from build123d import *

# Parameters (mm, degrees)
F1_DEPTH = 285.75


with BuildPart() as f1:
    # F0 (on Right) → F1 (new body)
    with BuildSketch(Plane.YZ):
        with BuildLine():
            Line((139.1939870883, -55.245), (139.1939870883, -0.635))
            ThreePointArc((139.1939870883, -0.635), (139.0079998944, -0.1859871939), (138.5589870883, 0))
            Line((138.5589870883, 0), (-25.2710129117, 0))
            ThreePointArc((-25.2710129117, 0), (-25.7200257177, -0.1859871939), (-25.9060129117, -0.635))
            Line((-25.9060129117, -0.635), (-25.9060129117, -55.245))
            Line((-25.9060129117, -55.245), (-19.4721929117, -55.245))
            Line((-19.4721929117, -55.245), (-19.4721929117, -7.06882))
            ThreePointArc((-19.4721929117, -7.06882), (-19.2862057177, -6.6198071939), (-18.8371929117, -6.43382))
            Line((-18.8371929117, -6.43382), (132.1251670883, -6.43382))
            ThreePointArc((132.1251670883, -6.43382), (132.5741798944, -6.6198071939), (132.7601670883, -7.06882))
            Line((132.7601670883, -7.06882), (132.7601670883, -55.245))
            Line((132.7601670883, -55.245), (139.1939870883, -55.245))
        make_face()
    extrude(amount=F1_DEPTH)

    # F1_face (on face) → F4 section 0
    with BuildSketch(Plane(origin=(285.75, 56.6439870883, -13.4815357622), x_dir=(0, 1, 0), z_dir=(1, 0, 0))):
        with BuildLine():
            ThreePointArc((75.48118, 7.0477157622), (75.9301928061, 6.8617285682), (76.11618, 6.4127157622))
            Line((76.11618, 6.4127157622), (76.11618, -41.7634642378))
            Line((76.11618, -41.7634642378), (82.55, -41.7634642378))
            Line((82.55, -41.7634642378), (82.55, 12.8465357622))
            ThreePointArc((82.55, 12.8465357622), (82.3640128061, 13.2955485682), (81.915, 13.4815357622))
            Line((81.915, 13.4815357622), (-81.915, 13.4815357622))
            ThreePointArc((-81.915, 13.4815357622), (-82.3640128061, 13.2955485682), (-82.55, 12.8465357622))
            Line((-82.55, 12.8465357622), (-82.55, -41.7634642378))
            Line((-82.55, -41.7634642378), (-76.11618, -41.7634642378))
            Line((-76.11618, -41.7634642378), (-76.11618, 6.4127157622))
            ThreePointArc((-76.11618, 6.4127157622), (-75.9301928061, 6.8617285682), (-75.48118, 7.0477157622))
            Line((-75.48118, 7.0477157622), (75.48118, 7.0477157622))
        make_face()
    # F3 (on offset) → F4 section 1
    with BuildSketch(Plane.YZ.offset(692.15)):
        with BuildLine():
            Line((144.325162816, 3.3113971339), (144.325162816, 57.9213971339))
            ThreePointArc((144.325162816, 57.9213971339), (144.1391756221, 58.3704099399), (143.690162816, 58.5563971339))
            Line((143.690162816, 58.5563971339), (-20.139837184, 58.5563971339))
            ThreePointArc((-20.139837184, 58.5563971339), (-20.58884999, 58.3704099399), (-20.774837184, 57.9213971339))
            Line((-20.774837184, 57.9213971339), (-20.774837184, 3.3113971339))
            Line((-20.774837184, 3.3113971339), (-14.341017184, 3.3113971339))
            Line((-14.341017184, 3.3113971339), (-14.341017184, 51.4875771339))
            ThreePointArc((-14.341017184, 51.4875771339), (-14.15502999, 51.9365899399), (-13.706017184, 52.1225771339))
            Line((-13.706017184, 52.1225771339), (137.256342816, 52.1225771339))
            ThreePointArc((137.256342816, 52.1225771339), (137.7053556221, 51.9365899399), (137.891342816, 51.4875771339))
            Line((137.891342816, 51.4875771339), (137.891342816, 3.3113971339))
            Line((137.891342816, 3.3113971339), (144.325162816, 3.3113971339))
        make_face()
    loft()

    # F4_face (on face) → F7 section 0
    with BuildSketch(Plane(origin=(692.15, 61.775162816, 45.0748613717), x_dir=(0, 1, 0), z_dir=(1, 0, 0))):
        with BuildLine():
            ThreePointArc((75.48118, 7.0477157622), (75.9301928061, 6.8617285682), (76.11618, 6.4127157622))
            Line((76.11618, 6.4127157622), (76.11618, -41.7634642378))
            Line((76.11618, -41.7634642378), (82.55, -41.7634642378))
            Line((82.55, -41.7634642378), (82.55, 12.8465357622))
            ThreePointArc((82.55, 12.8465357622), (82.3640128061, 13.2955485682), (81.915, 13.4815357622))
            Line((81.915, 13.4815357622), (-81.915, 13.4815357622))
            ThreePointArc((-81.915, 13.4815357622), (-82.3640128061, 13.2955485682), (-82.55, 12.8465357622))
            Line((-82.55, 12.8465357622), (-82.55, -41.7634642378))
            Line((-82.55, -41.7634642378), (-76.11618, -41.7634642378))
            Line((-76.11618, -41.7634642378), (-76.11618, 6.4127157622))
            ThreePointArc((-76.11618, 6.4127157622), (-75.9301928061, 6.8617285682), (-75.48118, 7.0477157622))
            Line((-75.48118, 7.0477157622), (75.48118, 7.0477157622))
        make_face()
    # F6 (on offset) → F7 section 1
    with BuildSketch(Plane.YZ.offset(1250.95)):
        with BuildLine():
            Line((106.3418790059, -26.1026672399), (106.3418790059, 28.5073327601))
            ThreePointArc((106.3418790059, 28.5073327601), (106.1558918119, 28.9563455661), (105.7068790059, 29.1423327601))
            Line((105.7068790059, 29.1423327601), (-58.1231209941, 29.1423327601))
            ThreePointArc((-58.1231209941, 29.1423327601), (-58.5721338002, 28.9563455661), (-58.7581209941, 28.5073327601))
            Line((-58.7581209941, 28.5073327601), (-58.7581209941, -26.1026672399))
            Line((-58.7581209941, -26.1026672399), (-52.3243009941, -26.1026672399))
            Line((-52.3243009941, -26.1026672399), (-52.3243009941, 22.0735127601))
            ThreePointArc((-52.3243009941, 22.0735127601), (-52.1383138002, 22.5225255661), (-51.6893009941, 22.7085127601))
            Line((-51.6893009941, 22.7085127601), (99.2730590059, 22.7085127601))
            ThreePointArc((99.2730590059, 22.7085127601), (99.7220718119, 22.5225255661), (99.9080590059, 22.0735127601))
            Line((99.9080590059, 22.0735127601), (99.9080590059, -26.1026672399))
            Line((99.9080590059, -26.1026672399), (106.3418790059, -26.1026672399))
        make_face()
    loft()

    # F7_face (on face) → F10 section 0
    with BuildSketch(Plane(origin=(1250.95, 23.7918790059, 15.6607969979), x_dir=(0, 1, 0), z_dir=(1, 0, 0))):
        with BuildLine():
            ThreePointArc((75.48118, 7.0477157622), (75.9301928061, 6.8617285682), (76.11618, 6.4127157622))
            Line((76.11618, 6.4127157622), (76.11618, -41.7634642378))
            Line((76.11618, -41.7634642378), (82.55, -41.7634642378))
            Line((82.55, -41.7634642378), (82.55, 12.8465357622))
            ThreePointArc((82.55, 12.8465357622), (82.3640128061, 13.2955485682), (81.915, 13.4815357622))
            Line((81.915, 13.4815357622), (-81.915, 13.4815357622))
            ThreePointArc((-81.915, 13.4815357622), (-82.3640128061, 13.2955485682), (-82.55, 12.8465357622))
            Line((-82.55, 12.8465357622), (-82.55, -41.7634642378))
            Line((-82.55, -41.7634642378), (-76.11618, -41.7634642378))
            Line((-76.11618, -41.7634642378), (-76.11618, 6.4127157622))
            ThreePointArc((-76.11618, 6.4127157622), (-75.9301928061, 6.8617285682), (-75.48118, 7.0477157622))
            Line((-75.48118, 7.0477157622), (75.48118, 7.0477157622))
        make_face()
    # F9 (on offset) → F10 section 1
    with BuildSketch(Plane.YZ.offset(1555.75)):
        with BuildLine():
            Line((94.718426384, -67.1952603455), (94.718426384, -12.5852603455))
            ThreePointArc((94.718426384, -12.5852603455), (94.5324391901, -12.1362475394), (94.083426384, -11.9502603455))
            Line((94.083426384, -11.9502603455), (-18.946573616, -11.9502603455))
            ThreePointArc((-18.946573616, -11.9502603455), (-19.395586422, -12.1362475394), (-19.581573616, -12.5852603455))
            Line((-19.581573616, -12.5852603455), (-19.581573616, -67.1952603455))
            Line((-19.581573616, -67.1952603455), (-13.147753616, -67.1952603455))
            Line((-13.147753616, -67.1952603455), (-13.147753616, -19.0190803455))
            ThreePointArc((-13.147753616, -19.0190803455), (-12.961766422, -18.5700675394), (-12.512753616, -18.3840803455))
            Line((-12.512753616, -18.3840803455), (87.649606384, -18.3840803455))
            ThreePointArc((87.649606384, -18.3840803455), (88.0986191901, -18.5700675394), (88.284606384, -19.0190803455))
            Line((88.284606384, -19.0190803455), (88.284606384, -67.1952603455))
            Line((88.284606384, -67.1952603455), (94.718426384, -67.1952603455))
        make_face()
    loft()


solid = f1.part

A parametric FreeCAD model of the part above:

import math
import FreeCAD as App
import Part
import Sketcher
from FreeCAD import Vector
Q = App.Units.Quantity

doc = App.newDocument("Part")
params = doc.addObject("Spreadsheet::Sheet", "Params")
for row, (alias, value) in enumerate([
    ("sketch1_radius", "0.025 in"),
    ("sketch1_width", "6.45 in"),
    ("sketch1_height", "2.15 in"),
    ("pad1_length", "11.25 in"),
    ("sketch2_radius", "0.025 in"),
    ("sketch2_width", "6.45 in"),
    ("sketch2_height", "2.15 in"),
    ("sketch3_radius", "0.025 in"),
    ("sketch3_width", "6.45 in"),
    ("sketch3_height", "2.15 in"),
    ("sketch4_radius", "0.025 in"),
    ("sketch4_width", "6.45 in"),
    ("sketch4_height", "2.15 in"),
    ("sketch5_radius", "0.025 in"),
    ("sketch5_width", "6.45 in"),
    ("sketch5_height", "2.15 in"),
    ("sketch6_radius", "0.025 in"),
    ("sketch6_width", "6.45 in"),
    ("sketch6_height", "2.15 in"),
    ("sketch7_radius", "0.025 in"),
    ("sketch7_width", "4.45 in"),
    ("sketch7_height", "2.15 in"),
], start=1):
    params.set(f"A{row}", alias)
    params.set(f"B{row}", "=" + value)
    params.setAlias(f"B{row}", alias)

body = doc.addObject("PartDesign::Body", "Body")

# Sketch on YZ plane
sketch1 = body.newObject("Sketcher::SketchObject", "Sketch")
sketch1.AttachmentSupport = (doc.getObject("YZ_Plane"), [""])
sketch1.MapMode = "FlatFace"
sketch1.addGeometry(Part.LineSegment(Vector(139.2, -55.2, 0), Vector(139.2, -0.6, 0)), False)
sketch1.addGeometry(Part.ArcOfCircle(Part.Circle(Vector(138.6, -0.6, 0), Vector(0, 0, 1), 0.6), math.radians(0), math.radians(90)), False)
sketch1.addGeometry(Part.LineSegment(Vector(138.6, 0, 0), Vector(-25.3, 0, 0)), False)
sketch1.addGeometry(Part.ArcOfCircle(Part.Circle(Vector(-25.3, -0.6, 0), Vector(0, 0, 1), 0.6), math.radians(90), math.radians(180)), False)
sketch1.addGeometry(Part.LineSegment(Vector(-25.9, -0.6, 0), Vector(-25.9, -55.2, 0)), False)
sketch1.addGeometry(Part.LineSegment(Vector(-25.9, -55.2, 0), Vector(-19.5, -55.2, 0)), False)
sketch1.addGeometry(Part.LineSegment(Vector(-19.5, -55.2, 0), Vector(-19.5, -7.1, 0)), False)
sketch1.addGeometry(Part.ArcOfCircle(Part.Circle(Vector(-18.8, -7.1, 0), Vector(0, 0, 1), 0.6), math.radians(90), math.radians(180)), False)
sketch1.addGeometry(Part.LineSegment(Vector(-18.8, -6.4, 0), Vector(132.1, -6.4, 0)), False)
sketch1.addGeometry(Part.ArcOfCircle(Part.Circle(Vector(132.1, -7.1, 0), Vector(0, 0, 1), 0.6), math.radians(0), math.radians(90)), False)
sketch1.addGeometry(Part.LineSegment(Vector(132.8, -7.1, 0), Vector(132.8, -55.2, 0)), False)
sketch1.addGeometry(Part.LineSegment(Vector(132.8, -55.2, 0), Vector(139.2, -55.2, 0)), False)
sketch1.addConstraint(Sketcher.Constraint("Tangent", 0, 2, 1, 1))
sketch1.addConstraint(Sketcher.Constraint("Tangent", 1, 2, 2, 1))
sketch1.addConstraint(Sketcher.Constraint("Tangent", 2, 2, 3, 1))
sketch1.addConstraint(Sketcher.Constraint("Tangent", 3, 2, 4, 1))
sketch1.addConstraint(Sketcher.Constraint("Coincident", 4, 2, 5, 1))
sketch1.addConstraint(Sketcher.Constraint("Coincident", 5, 2, 6, 1))
sketch1.addConstraint(Sketcher.Constraint("Tangent", 6, 2, 7, 2))
sketch1.addConstraint(Sketcher.Constraint("Tangent", 7, 1, 8, 1))
sketch1.addConstraint(Sketcher.Constraint("Tangent", 8, 2, 9, 2))
sketch1.addConstraint(Sketcher.Constraint("Tangent", 9, 1, 10, 1))
sketch1.addConstraint(Sketcher.Constraint("Coincident", 10, 2, 11, 1))
sketch1.addConstraint(Sketcher.Constraint("Coincident", 11, 2, 0, 1))
sketch1.addConstraint(Sketcher.Constraint("Vertical", 0))
sketch1.addConstraint(Sketcher.Constraint("Horizontal", 2))
sketch1.addConstraint(Sketcher.Constraint("Vertical", 4))
sketch1.addConstraint(Sketcher.Constraint("Horizontal", 5))
sketch1.addConstraint(Sketcher.Constraint("Vertical", 6))
sketch1.addConstraint(Sketcher.Constraint("Horizontal", 8))
sketch1.addConstraint(Sketcher.Constraint("Vertical", 10))
sketch1.addConstraint(Sketcher.Constraint("Horizontal", 11))
sketch1.addConstraint(Sketcher.Constraint("Equal", 1, 3))
sketch1.addConstraint(Sketcher.Constraint("Equal", 3, 7))
sketch1.addConstraint(Sketcher.Constraint("Equal", 7, 9))
sketch1.addConstraint(Sketcher.Constraint("PointOnObject", 1, 2, -1))
sketch1.addConstraint(Sketcher.Constraint("Horizontal", 5, 2, 10, 2))
sketch1.addConstraint(Sketcher.Constraint("Equal", 5, 11))
sketch1.addConstraint(Sketcher.Constraint("Radius", 1, Q("0.025 in")))
sketch1.addConstraint(Sketcher.Constraint("DistanceX", 2, 2, 2, 1, Q("6.45 in")))
sketch1.addConstraint(Sketcher.Constraint("DistanceY", 0, 1, 0, 2, Q("2.15 in")))
sketch1.addConstraint(Sketcher.Constraint("DistanceX", 5, 1, 5, 2, Q("0.2533 in")))
sketch1.addConstraint(Sketcher.Constraint("DistanceY", 6, 1, 6, 2, Q("1.8967 in")))
sketch1.addConstraint(Sketcher.Constraint("DistanceX", -1, 1, 1, 3, 138.558987))
sketch1.setExpression("Constraints[26]", "Params.sketch1_radius")
sketch1.setExpression("Constraints[27]", "Params.sketch1_width")
sketch1.setExpression("Constraints[28]", "Params.sketch1_height")
pad1 = body.newObject("PartDesign::Pad", "Pad")
pad1.Profile = sketch1
pad1.setExpression("Length", "Params.pad1_length")

# Sketch on YZ plane
sketch2 = body.newObject("Sketcher::SketchObject", "Sketch001")
sketch2.AttachmentSupport = (doc.getObject("YZ_Plane"), [""])
sketch2.MapMode = "FlatFace"
sketch2.AttachmentOffset = App.Placement(Vector(0, 0, 11.25 * 25.4), App.Rotation())
sketch2.addGeometry(Part.ArcOfCircle(Part.Circle(Vector(132.1, -7.1, 0), Vector(0, 0, 1), 0.6), math.radians(0), math.radians(90)), False)
sketch2.addGeometry(Part.LineSegment(Vector(132.8, -7.1, 0), Vector(132.8, -55.2, 0)), False)
sketch2.addGeometry(Part.LineSegment(Vector(132.8, -55.2, 0), Vector(139.2, -55.2, 0)), False)
sketch2.addGeometry(Part.LineSegment(Vector(139.2, -55.2, 0), Vector(139.2, -0.6, 0)), False)
sketch2.addGeometry(Part.ArcOfCircle(Part.Circle(Vector(138.6, -0.6, 0), Vector(0, 0, 1), 0.6), math.radians(0), math.radians(90)), False)
sketch2.addGeometry(Part.LineSegment(Vector(138.6, 0, 0), Vector(-25.3, 0, 0)), False)
sketch2.addGeometry(Part.ArcOfCircle(Part.Circle(Vector(-25.3, -0.6, 0), Vector(0, 0, 1), 0.6), math.radians(90), math.radians(180)), False)
sketch2.addGeometry(Part.LineSegment(Vector(-25.9, -0.6, 0), Vector(-25.9, -55.2, 0)), False)
sketch2.addGeometry(Part.LineSegment(Vector(-25.9, -55.2, 0), Vector(-19.5, -55.2, 0)), False)
sketch2.addGeometry(Part.LineSegment(Vector(-19.5, -55.2, 0), Vector(-19.5, -7.1, 0)), False)
sketch2.addGeometry(Part.ArcOfCircle(Part.Circle(Vector(-18.8, -7.1, 0), Vector(0, 0, 1), 0.6), math.radians(90), math.radians(180)), False)
sketch2.addGeometry(Part.LineSegment(Vector(-18.8, -6.4, 0), Vector(132.1, -6.4, 0)), False)
sketch2.addConstraint(Sketcher.Constraint("Tangent", 0, 1, 1, 1))
sketch2.addConstraint(Sketcher.Constraint("Coincident", 1, 2, 2, 1))
sketch2.addConstraint(Sketcher.Constraint("Coincident", 2, 2, 3, 1))
sketch2.addConstraint(Sketcher.Constraint("Tangent", 3, 2, 4, 1))
sketch2.addConstraint(Sketcher.Constraint("Tangent", 4, 2, 5, 1))
sketch2.addConstraint(Sketcher.Constraint("Tangent", 5, 2, 6, 1))
sketch2.addConstraint(Sketcher.Constraint("Tangent", 6, 2, 7, 1))
sketch2.addConstraint(Sketcher.Constraint("Coincident", 7, 2, 8, 1))
sketch2.addConstraint(Sketcher.Constraint("Coincident", 8, 2, 9, 1))
sketch2.addConstraint(Sketcher.Constraint("Tangent", 9, 2, 10, 2))
sketch2.addConstraint(Sketcher.Constraint("Tangent", 10, 1, 11, 1))
sketch2.addConstraint(Sketcher.Constraint("Tangent", 11, 2, 0, 2))
sketch2.addConstraint(Sketcher.Constraint("Vertical", 1))
sketch2.addConstraint(Sketcher.Constraint("Horizontal", 2))
sketch2.addConstraint(Sketcher.Constraint("Vertical", 3))
sketch2.addConstraint(Sketcher.Constraint("Horizontal", 5))
sketch2.addConstraint(Sketcher.Constraint("Vertical", 7))
sketch2.addConstraint(Sketcher.Constraint("Horizontal", 8))
sketch2.addConstraint(Sketcher.Constraint("Vertical", 9))
sketch2.addConstraint(Sketcher.Constraint("Horizontal", 11))
sketch2.addConstraint(Sketcher.Constraint("Equal", 0, 4))
sketch2.addConstraint(Sketcher.Constraint("Equal", 4, 6))
sketch2.addConstraint(Sketcher.Constraint("Equal", 6, 10))
sketch2.addConstraint(Sketcher.Constraint("PointOnObject", 4, 2, -1))
sketch2.addConstraint(Sketcher.Constraint("Horizontal", 2, 2, 7, 2))
sketch2.addConstraint(Sketcher.Constraint("Equal", 2, 8))
sketch2.addConstraint(Sketcher.Constraint("Radius", 0, Q("0.025 in")))
sketch2.addConstraint(Sketcher.Constraint("DistanceX", 5, 2, 5, 1, Q("6.45 in")))
sketch2.addConstraint(Sketcher.Constraint("DistanceY", 3, 1, 3, 2, Q("2.15 in")))
sketch2.addConstraint(Sketcher.Constraint("DistanceX", 2, 1, 2, 2, Q("0.2533 in")))
sketch2.addConstraint(Sketcher.Constraint("DistanceY", 1, 2, 1, 1, Q("1.8967 in")))
sketch2.addConstraint(Sketcher.Constraint("DistanceX", -1, 1, 0, 3, 132.125167))
sketch2.setExpression("Constraints[26]", "Params.sketch2_radius")
sketch2.setExpression("Constraints[27]", "Params.sketch2_width")
sketch2.setExpression("Constraints[28]", "Params.sketch2_height")

# Sketch on YZ plane
sketch3 = body.newObject("Sketcher::SketchObject", "Sketch002")
sketch3.AttachmentSupport = (doc.getObject("YZ_Plane"), [""])
sketch3.MapMode = "FlatFace"
sketch3.AttachmentOffset = App.Placement(Vector(0, 0, 27.25 * 25.4), App.Rotation())
sketch3.addGeometry(Part.LineSegment(Vector(144.3, 3.3, 0), Vector(144.3, 57.9, 0)), False)
sketch3.addGeometry(Part.ArcOfCircle(Part.Circle(Vector(143.7, 57.9, 0), Vector(0, 0, 1), 0.6), math.radians(0), math.radians(90)), False)
sketch3.addGeometry(Part.LineSegment(Vector(143.7, 58.6, 0), Vector(-20.1, 58.6, 0)), False)
sketch3.addGeometry(Part.ArcOfCircle(Part.Circle(Vector(-20.1, 57.9, 0), Vector(0, 0, 1), 0.6), math.radians(90), math.radians(180)), False)
sketch3.addGeometry(Part.LineSegment(Vector(-20.8, 57.9, 0), Vector(-20.8, 3.3, 0)), False)
sketch3.addGeometry(Part.LineSegment(Vector(-20.8, 3.3, 0), Vector(-14.3, 3.3, 0)), False)
sketch3.addGeometry(Part.LineSegment(Vector(-14.3, 3.3, 0), Vector(-14.3, 51.5, 0)), False)
sketch3.addGeometry(Part.ArcOfCircle(Part.Circle(Vector(-13.7, 51.5, 0), Vector(0, 0, 1), 0.6), math.radians(90), math.radians(180)), False)
sketch3.addGeometry(Part.LineSegment(Vector(-13.7, 52.1, 0), Vector(137.3, 52.1, 0)), False)
sketch3.addGeometry(Part.ArcOfCircle(Part.Circle(Vector(137.3, 51.5, 0), Vector(0, 0, 1), 0.6), math.radians(0), math.radians(90)), False)
sketch3.addGeometry(Part.LineSegment(Vector(137.9, 51.5, 0), Vector(137.9, 3.3, 0)), False)
sketch3.addGeometry(Part.LineSegment(Vector(137.9, 3.3, 0), Vector(144.3, 3.3, 0)), False)
sketch3.addConstraint(Sketcher.Constraint("Tangent", 0, 2, 1, 1))
sketch3.addConstraint(Sketcher.Constraint("Tangent", 1, 2, 2, 1))
sketch3.addConstraint(Sketcher.Constraint("Tangent", 2, 2, 3, 1))
sketch3.addConstraint(Sketcher.Constraint("Tangent", 3, 2, 4, 1))
sketch3.addConstraint(Sketcher.Constraint("Coincident", 4, 2, 5, 1))
sketch3.addConstraint(Sketcher.Constraint("Coincident", 5, 2, 6, 1))
sketch3.addConstraint(Sketcher.Constraint("Tangent", 6, 2, 7, 2))
sketch3.addConstraint(Sketcher.Constraint("Tangent", 7, 1, 8, 1))
sketch3.addConstraint(Sketcher.Constraint("Tangent", 8, 2, 9, 2))
sketch3.addConstraint(Sketcher.Constraint("Tangent", 9, 1, 10, 1))
sketch3.addConstraint(Sketcher.Constraint("Coincident", 10, 2, 11, 1))
sketch3.addConstraint(Sketcher.Constraint("Coincident", 11, 2, 0, 1))
sketch3.addConstraint(Sketcher.Constraint("Vertical", 0))
sketch3.addConstraint(Sketcher.Constraint("Horizontal", 2))
sketch3.addConstraint(Sketcher.Constraint("Vertical", 4))
sketch3.addConstraint(Sketcher.Constraint("Horizontal", 5))
sketch3.addConstraint(Sketcher.Constraint("Vertical", 6))
sketch3.addConstraint(Sketcher.Constraint("Horizontal", 8))
sketch3.addConstraint(Sketcher.Constraint("Vertical", 10))
sketch3.addConstraint(Sketcher.Constraint("Horizontal", 11))
sketch3.addConstraint(Sketcher.Constraint("Equal", 1, 3))
sketch3.addConstraint(Sketcher.Constraint("Equal", 3, 7))
sketch3.addConstraint(Sketcher.Constraint("Equal", 7, 9))
sketch3.addConstraint(Sketcher.Constraint("Horizontal", 5, 2, 10, 2))
sketch3.addConstraint(Sketcher.Constraint("Equal", 5, 11))
sketch3.addConstraint(Sketcher.Constraint("Radius", 1, Q("0.025 in")))
sketch3.addConstraint(Sketcher.Constraint("DistanceX", 2, 2, 2, 1, Q("6.45 in")))
sketch3.addConstraint(Sketcher.Constraint("DistanceY", 0, 1, 0, 2, Q("2.15 in")))
sketch3.addConstraint(Sketcher.Constraint("DistanceX", 5, 1, 5, 2, Q("0.2533 in")))
sketch3.addConstraint(Sketcher.Constraint("DistanceY", 6, 1, 6, 2, Q("1.8967 in")))
sketch3.addConstraint(Sketcher.Constraint("DistanceX", -1, 1, 1, 3, 143.690163))
sketch3.addConstraint(Sketcher.Constraint("DistanceY", -1, 1, 1, 3, 57.921397))
sketch3.setExpression("Constraints[25]", "Params.sketch3_radius")
sketch3.setExpression("Constraints[26]", "Params.sketch3_width")
sketch3.setExpression("Constraints[27]", "Params.sketch3_height")

additiveloft = body.newObject("PartDesign::AdditiveLoft", "AdditiveLoft")
additiveloft.Profile = sketch2
additiveloft.Sections = [sketch3]

# Sketch on YZ plane
sketch4 = body.newObject("Sketcher::SketchObject", "Sketch003")
sketch4.AttachmentSupport = (doc.getObject("YZ_Plane"), [""])
sketch4.MapMode = "FlatFace"
sketch4.AttachmentOffset = App.Placement(Vector(0, 0, 27.25 * 25.4), App.Rotation())
sketch4.addGeometry(Part.ArcOfCircle(Part.Circle(Vector(137.3, 51.5, 0), Vector(0, 0, 1), 0.6), math.radians(0), math.radians(90)), False)
sketch4.addGeometry(Part.LineSegment(Vector(137.9, 51.5, 0), Vector(137.9, 3.3, 0)), False)
sketch4.addGeometry(Part.LineSegment(Vector(137.9, 3.3, 0), Vector(144.3, 3.3, 0)), False)
sketch4.addGeometry(Part.LineSegment(Vector(144.3, 3.3, 0), Vector(144.3, 57.9, 0)), False)
sketch4.addGeometry(Part.ArcOfCircle(Part.Circle(Vector(143.7, 57.9, 0), Vector(0, 0, 1), 0.6), math.radians(0), math.radians(90)), False)
sketch4.addGeometry(Part.LineSegment(Vector(143.7, 58.6, 0), Vector(-20.1, 58.6, 0)), False)
sketch4.addGeometry(Part.ArcOfCircle(Part.Circle(Vector(-20.1, 57.9, 0), Vector(0, 0, 1), 0.6), math.radians(90), math.radians(180)), False)
sketch4.addGeometry(Part.LineSegment(Vector(-20.8, 57.9, 0), Vector(-20.8, 3.3, 0)), False)
sketch4.addGeometry(Part.LineSegment(Vector(-20.8, 3.3, 0), Vector(-14.3, 3.3, 0)), False)
sketch4.addGeometry(Part.LineSegment(Vector(-14.3, 3.3, 0), Vector(-14.3, 51.5, 0)), False)
sketch4.addGeometry(Part.ArcOfCircle(Part.Circle(Vector(-13.7, 51.5, 0), Vector(0, 0, 1), 0.6), math.radians(90), math.radians(180)), False)
sketch4.addGeometry(Part.LineSegment(Vector(-13.7, 52.1, 0), Vector(137.3, 52.1, 0)), False)
sketch4.addConstraint(Sketcher.Constraint("Tangent", 0, 1, 1, 1))
sketch4.addConstraint(Sketcher.Constraint("Coincident", 1, 2, 2, 1))
sketch4.addConstraint(Sketcher.Constraint("Coincident", 2, 2, 3, 1))
sketch4.addConstraint(Sketcher.Constraint("Tangent", 3, 2, 4, 1))
sketch4.addConstraint(Sketcher.Constraint("Tangent", 4, 2, 5, 1))
sketch4.addConstraint(Sketcher.Constraint("Tangent", 5, 2, 6, 1))
sketch4.addConstraint(Sketcher.Constraint("Tangent", 6, 2, 7, 1))
sketch4.addConstraint(Sketcher.Constraint("Coincident", 7, 2, 8, 1))
sketch4.addConstraint(Sketcher.Constraint("Coincident", 8, 2, 9, 1))
sketch4.addConstraint(Sketcher.Constraint("Tangent", 9, 2, 10, 2))
sketch4.addConstraint(Sketcher.Constraint("Tangent", 10, 1, 11, 1))
sketch4.addConstraint(Sketcher.Constraint("Tangent", 11, 2, 0, 2))
sketch4.addConstraint(Sketcher.Constraint("Vertical", 1))
sketch4.addConstraint(Sketcher.Constraint("Horizontal", 2))
sketch4.addConstraint(Sketcher.Constraint("Vertical", 3))
sketch4.addConstraint(Sketcher.Constraint("Horizontal", 5))
sketch4.addConstraint(Sketcher.Constraint("Vertical", 7))
sketch4.addConstraint(Sketcher.Constraint("Horizontal", 8))
sketch4.addConstraint(Sketcher.Constraint("Vertical", 9))
sketch4.addConstraint(Sketcher.Constraint("Horizontal", 11))
sketch4.addConstraint(Sketcher.Constraint("Equal", 0, 4))
sketch4.addConstraint(Sketcher.Constraint("Equal", 4, 6))
sketch4.addConstraint(Sketcher.Constraint("Equal", 6, 10))
sketch4.addConstraint(Sketcher.Constraint("Horizontal", 2, 2, 7, 2))
sketch4.addConstraint(Sketcher.Constraint("Equal", 2, 8))
sketch4.addConstraint(Sketcher.Constraint("Radius", 0, Q("0.025 in")))
sketch4.addConstraint(Sketcher.Constraint("DistanceX", 5, 2, 5, 1, Q("6.45 in")))
sketch4.addConstraint(Sketcher.Constraint("DistanceY", 3, 1, 3, 2, Q("2.15 in")))
sketch4.addConstraint(Sketcher.Constraint("DistanceX", 2, 1, 2, 2, Q("0.2533 in")))
sketch4.addConstraint(Sketcher.Constraint("DistanceY", 1, 2, 1, 1, Q("1.8967 in")))
sketch4.addConstraint(Sketcher.Constraint("DistanceX", -1, 1, 0, 3, 137.256343))
sketch4.addConstraint(Sketcher.Constraint("DistanceY", -1, 1, 0, 3, 51.487577))
sketch4.setExpression("Constraints[25]", "Params.sketch4_radius")
sketch4.setExpression("Constraints[26]", "Params.sketch4_width")
sketch4.setExpression("Constraints[27]", "Params.sketch4_height")

# Sketch on YZ plane
sketch5 = body.newObject("Sketcher::SketchObject", "Sketch004")
sketch5.AttachmentSupport = (doc.getObject("YZ_Plane"), [""])
sketch5.MapMode = "FlatFace"
sketch5.AttachmentOffset = App.Placement(Vector(0, 0, 49.25 * 25.4), App.Rotation())
sketch5.addGeometry(Part.LineSegment(Vector(106.3, -26.1, 0), Vector(106.3, 28.5, 0)), False)
sketch5.addGeometry(Part.ArcOfCircle(Part.Circle(Vector(105.7, 28.5, 0), Vector(0, 0, 1), 0.6), math.radians(0), math.radians(90)), False)
sketch5.addGeometry(Part.LineSegment(Vector(105.7, 29.1, 0), Vector(-58.1, 29.1, 0)), False)
sketch5.addGeometry(Part.ArcOfCircle(Part.Circle(Vector(-58.1, 28.5, 0), Vector(0, 0, 1), 0.6), math.radians(90), math.radians(180)), False)
sketch5.addGeometry(Part.LineSegment(Vector(-58.8, 28.5, 0), Vector(-58.8, -26.1, 0)), False)
sketch5.addGeometry(Part.LineSegment(Vector(-58.8, -26.1, 0), Vector(-52.3, -26.1, 0)), False)
sketch5.addGeometry(Part.LineSegment(Vector(-52.3, -26.1, 0), Vector(-52.3, 22.1, 0)), False)
sketch5.addGeometry(Part.ArcOfCircle(Part.Circle(Vector(-51.7, 22.1, 0), Vector(0, 0, 1), 0.6), math.radians(90), math.radians(180)), False)
sketch5.addGeometry(Part.LineSegment(Vector(-51.7, 22.7, 0), Vector(99.3, 22.7, 0)), False)
sketch5.addGeometry(Part.ArcOfCircle(Part.Circle(Vector(99.3, 22.1, 0), Vector(0, 0, 1), 0.6), math.radians(0), math.radians(90)), False)
sketch5.addGeometry(Part.LineSegment(Vector(99.9, 22.1, 0), Vector(99.9, -26.1, 0)), False)
sketch5.addGeometry(Part.LineSegment(Vector(99.9, -26.1, 0), Vector(106.3, -26.1, 0)), False)
sketch5.addConstraint(Sketcher.Constraint("Tangent", 0, 2, 1, 1))
sketch5.addConstraint(Sketcher.Constraint("Tangent", 1, 2, 2, 1))
sketch5.addConstraint(Sketcher.Constraint("Tangent", 2, 2, 3, 1))
sketch5.addConstraint(Sketcher.Constraint("Tangent", 3, 2, 4, 1))
sketch5.addConstraint(Sketcher.Constraint("Coincident", 4, 2, 5, 1))
sketch5.addConstraint(Sketcher.Constraint("Coincident", 5, 2, 6, 1))
sketch5.addConstraint(Sketcher.Constraint("Tangent", 6, 2, 7, 2))
sketch5.addConstraint(Sketcher.Constraint("Tangent", 7, 1, 8, 1))
sketch5.addConstraint(Sketcher.Constraint("Tangent", 8, 2, 9, 2))
sketch5.addConstraint(Sketcher.Constraint("Tangent", 9, 1, 10, 1))
sketch5.addConstraint(Sketcher.Constraint("Coincident", 10, 2, 11, 1))
sketch5.addConstraint(Sketcher.Constraint("Coincident", 11, 2, 0, 1))
sketch5.addConstraint(Sketcher.Constraint("Vertical", 0))
sketch5.addConstraint(Sketcher.Constraint("Horizontal", 2))
sketch5.addConstraint(Sketcher.Constraint("Vertical", 4))
sketch5.addConstraint(Sketcher.Constraint("Horizontal", 5))
sketch5.addConstraint(Sketcher.Constraint("Vertical", 6))
sketch5.addConstraint(Sketcher.Constraint("Horizontal", 8))
sketch5.addConstraint(Sketcher.Constraint("Vertical", 10))
sketch5.addConstraint(Sketcher.Constraint("Horizontal", 11))
sketch5.addConstraint(Sketcher.Constraint("Equal", 1, 3))
sketch5.addConstraint(Sketcher.Constraint("Equal", 3, 7))
sketch5.addConstraint(Sketcher.Constraint("Equal", 7, 9))
sketch5.addConstraint(Sketcher.Constraint("Horizontal", 5, 2, 10, 2))
sketch5.addConstraint(Sketcher.Constraint("Equal", 5, 11))
sketch5.addConstraint(Sketcher.Constraint("Radius", 1, Q("0.025 in")))
sketch5.addConstraint(Sketcher.Constraint("DistanceX", 2, 2, 2, 1, Q("6.45 in")))
sketch5.addConstraint(Sketcher.Constraint("DistanceY", 0, 1, 0, 2, Q("2.15 in")))
sketch5.addConstraint(Sketcher.Constraint("DistanceX", 5, 1, 5, 2, Q("0.2533 in")))
sketch5.addConstraint(Sketcher.Constraint("DistanceY", 6, 1, 6, 2, Q("1.8967 in")))
sketch5.addConstraint(Sketcher.Constraint("DistanceX", 7, 3, -1, 1, 51.689301))
sketch5.addConstraint(Sketcher.Constraint("DistanceY", -1, 1, 1, 3, 28.507333))
sketch5.setExpression("Constraints[25]", "Params.sketch5_radius")
sketch5.setExpression("Constraints[26]", "Params.sketch5_width")
sketch5.setExpression("Constraints[27]", "Params.sketch5_height")

additiveloft2 = body.newObject("PartDesign::AdditiveLoft", "AdditiveLoft001")
additiveloft2.Profile = sketch4
additiveloft2.Sections = [sketch5]

# Sketch on YZ plane
sketch6 = body.newObject("Sketcher::SketchObject", "Sketch005")
sketch6.AttachmentSupport = (doc.getObject("YZ_Plane"), [""])
sketch6.MapMode = "FlatFace"
sketch6.AttachmentOffset = App.Placement(Vector(0, 0, 49.25 * 25.4), App.Rotation())
sketch6.addGeometry(Part.ArcOfCircle(Part.Circle(Vector(99.3, 22.1, 0), Vector(0, 0, 1), 0.6), math.radians(0), math.radians(90)), False)
sketch6.addGeometry(Part.LineSegment(Vector(99.9, 22.1, 0), Vector(99.9, -26.1, 0)), False)
sketch6.addGeometry(Part.LineSegment(Vector(99.9, -26.1, 0), Vector(106.3, -26.1, 0)), False)
sketch6.addGeometry(Part.LineSegment(Vector(106.3, -26.1, 0), Vector(106.3, 28.5, 0)), False)
sketch6.addGeometry(Part.ArcOfCircle(Part.Circle(Vector(105.7, 28.5, 0), Vector(0, 0, 1), 0.6), math.radians(0), math.radians(90)), False)
sketch6.addGeometry(Part.LineSegment(Vector(105.7, 29.1, 0), Vector(-58.1, 29.1, 0)), False)
sketch6.addGeometry(Part.ArcOfCircle(Part.Circle(Vector(-58.1, 28.5, 0), Vector(0, 0, 1), 0.6), math.radians(90), math.radians(180)), False)
sketch6.addGeometry(Part.LineSegment(Vector(-58.8, 28.5, 0), Vector(-58.8, -26.1, 0)), False)
sketch6.addGeometry(Part.LineSegment(Vector(-58.8, -26.1, 0), Vector(-52.3, -26.1, 0)), False)
sketch6.addGeometry(Part.LineSegment(Vector(-52.3, -26.1, 0), Vector(-52.3, 22.1, 0)), False)
sketch6.addGeometry(Part.ArcOfCircle(Part.Circle(Vector(-51.7, 22.1, 0), Vector(0, 0, 1), 0.6), math.radians(90), math.radians(180)), False)
sketch6.addGeometry(Part.LineSegment(Vector(-51.7, 22.7, 0), Vector(99.3, 22.7, 0)), False)
sketch6.addConstraint(Sketcher.Constraint("Tangent", 0, 1, 1, 1))
sketch6.addConstraint(Sketcher.Constraint("Coincident", 1, 2, 2, 1))
sketch6.addConstraint(Sketcher.Constraint("Coincident", 2, 2, 3, 1))
sketch6.addConstraint(Sketcher.Constraint("Tangent", 3, 2, 4, 1))
sketch6.addConstraint(Sketcher.Constraint("Tangent", 4, 2, 5, 1))
sketch6.addConstraint(Sketcher.Constraint("Tangent", 5, 2, 6, 1))
sketch6.addConstraint(Sketcher.Constraint("Tangent", 6, 2, 7, 1))
sketch6.addConstraint(Sketcher.Constraint("Coincident", 7, 2, 8, 1))
sketch6.addConstraint(Sketcher.Constraint("Coincident", 8, 2, 9, 1))
sketch6.addConstraint(Sketcher.Constraint("Tangent", 9, 2, 10, 2))
sketch6.addConstraint(Sketcher.Constraint("Tangent", 10, 1, 11, 1))
sketch6.addConstraint(Sketcher.Constraint("Tangent", 11, 2, 0, 2))
sketch6.addConstraint(Sketcher.Constraint("Vertical", 1))
sketch6.addConstraint(Sketcher.Constraint("Horizontal", 2))
sketch6.addConstraint(Sketcher.Constraint("Vertical", 3))
sketch6.addConstraint(Sketcher.Constraint("Horizontal", 5))
sketch6.addConstraint(Sketcher.Constraint("Vertical", 7))
sketch6.addConstraint(Sketcher.Constraint("Horizontal", 8))
sketch6.addConstraint(Sketcher.Constraint("Vertical", 9))
sketch6.addConstraint(Sketcher.Constraint("Horizontal", 11))
sketch6.addConstraint(Sketcher.Constraint("Equal", 0, 4))
sketch6.addConstraint(Sketcher.Constraint("Equal", 4, 6))
sketch6.addConstraint(Sketcher.Constraint("Equal", 6, 10))
sketch6.addConstraint(Sketcher.Constraint("Horizontal", 2, 2, 7, 2))
sketch6.addConstraint(Sketcher.Constraint("Equal", 2, 8))
sketch6.addConstraint(Sketcher.Constraint("Radius", 0, Q("0.025 in")))
sketch6.addConstraint(Sketcher.Constraint("DistanceX", 5, 2, 5, 1, Q("6.45 in")))
sketch6.addConstraint(Sketcher.Constraint("DistanceY", 3, 1, 3, 2, Q("2.15 in")))
sketch6.addConstraint(Sketcher.Constraint("DistanceX", 2, 1, 2, 2, Q("0.2533 in")))
sketch6.addConstraint(Sketcher.Constraint("DistanceY", 1, 2, 1, 1, Q("1.8967 in")))
sketch6.addConstraint(Sketcher.Constraint("DistanceX", 10, 3, -1, 1, 51.689301))
sketch6.addConstraint(Sketcher.Constraint("DistanceY", -1, 1, 0, 3, 22.073513))
sketch6.setExpression("Constraints[25]", "Params.sketch6_radius")
sketch6.setExpression("Constraints[26]", "Params.sketch6_width")
sketch6.setExpression("Constraints[27]", "Params.sketch6_height")

# Sketch on YZ plane
sketch7 = body.newObject("Sketcher::SketchObject", "Sketch006")
sketch7.AttachmentSupport = (doc.getObject("YZ_Plane"), [""])
sketch7.MapMode = "FlatFace"
sketch7.AttachmentOffset = App.Placement(Vector(0, 0, 61.25 * 25.4), App.Rotation())
sketch7.addGeometry(Part.LineSegment(Vector(94.7, -67.2, 0), Vector(94.7, -12.6, 0)), False)
sketch7.addGeometry(Part.ArcOfCircle(Part.Circle(Vector(94.1, -12.6, 0), Vector(0, 0, 1), 0.6), math.radians(0), math.radians(90)), False)
sketch7.addGeometry(Part.LineSegment(Vector(94.1, -12, 0), Vector(-18.9, -12, 0)), False)
sketch7.addGeometry(Part.ArcOfCircle(Part.Circle(Vector(-18.9, -12.6, 0), Vector(0, 0, 1), 0.6), math.radians(90), math.radians(180)), False)
sketch7.addGeometry(Part.LineSegment(Vector(-19.6, -12.6, 0), Vector(-19.6, -67.2, 0)), False)
sketch7.addGeometry(Part.LineSegment(Vector(-19.6, -67.2, 0), Vector(-13.1, -67.2, 0)), False)
sketch7.addGeometry(Part.LineSegment(Vector(-13.1, -67.2, 0), Vector(-13.1, -19, 0)), False)
sketch7.addGeometry(Part.ArcOfCircle(Part.Circle(Vector(-12.5, -19, 0), Vector(0, 0, 1), 0.6), math.radians(90), math.radians(180)), False)
sketch7.addGeometry(Part.LineSegment(Vector(-12.5, -18.4, 0), Vector(87.6, -18.4, 0)), False)
sketch7.addGeometry(Part.ArcOfCircle(Part.Circle(Vector(87.6, -19, 0), Vector(0, 0, 1), 0.6), math.radians(0), math.radians(90)), False)
sketch7.addGeometry(Part.LineSegment(Vector(88.3, -19, 0), Vector(88.3, -67.2, 0)), False)
sketch7.addGeometry(Part.LineSegment(Vector(88.3, -67.2, 0), Vector(94.7, -67.2, 0)), False)
sketch7.addConstraint(Sketcher.Constraint("Tangent", 0, 2, 1, 1))
sketch7.addConstraint(Sketcher.Constraint("Tangent", 1, 2, 2, 1))
sketch7.addConstraint(Sketcher.Constraint("Tangent", 2, 2, 3, 1))
sketch7.addConstraint(Sketcher.Constraint("Tangent", 3, 2, 4, 1))
sketch7.addConstraint(Sketcher.Constraint("Coincident", 4, 2, 5, 1))
sketch7.addConstraint(Sketcher.Constraint("Coincident", 5, 2, 6, 1))
sketch7.addConstraint(Sketcher.Constraint("Tangent", 6, 2, 7, 2))
sketch7.addConstraint(Sketcher.Constraint("Tangent", 7, 1, 8, 1))
sketch7.addConstraint(Sketcher.Constraint("Tangent", 8, 2, 9, 2))
sketch7.addConstraint(Sketcher.Constraint("Tangent", 9, 1, 10, 1))
sketch7.addConstraint(Sketcher.Constraint("Coincident", 10, 2, 11, 1))
sketch7.addConstraint(Sketcher.Constraint("Coincident", 11, 2, 0, 1))
sketch7.addConstraint(Sketcher.Constraint("Vertical", 0))
sketch7.addConstraint(Sketcher.Constraint("Horizontal", 2))
sketch7.addConstraint(Sketcher.Constraint("Vertical", 4))
sketch7.addConstraint(Sketcher.Constraint("Horizontal", 5))
sketch7.addConstraint(Sketcher.Constraint("Vertical", 6))
sketch7.addConstraint(Sketcher.Constraint("Horizontal", 8))
sketch7.addConstraint(Sketcher.Constraint("Vertical", 10))
sketch7.addConstraint(Sketcher.Constraint("Horizontal", 11))
sketch7.addConstraint(Sketcher.Constraint("Equal", 1, 3))
sketch7.addConstraint(Sketcher.Constraint("Equal", 3, 7))
sketch7.addConstraint(Sketcher.Constraint("Equal", 7, 9))
sketch7.addConstraint(Sketcher.Constraint("Horizontal", 5, 2, 10, 2))
sketch7.addConstraint(Sketcher.Constraint("Equal", 5, 11))
sketch7.addConstraint(Sketcher.Constraint("Radius", 1, Q("0.025 in")))
sketch7.addConstraint(Sketcher.Constraint("DistanceX", 2, 2, 2, 1, Q("4.45 in")))
sketch7.addConstraint(Sketcher.Constraint("DistanceY", 0, 1, 0, 2, Q("2.15 in")))
sketch7.addConstraint(Sketcher.Constraint("DistanceX", 5, 1, 5, 2, Q("0.2533 in")))
sketch7.addConstraint(Sketcher.Constraint("DistanceY", 6, 1, 6, 2, Q("1.8967 in")))
sketch7.addConstraint(Sketcher.Constraint("DistanceY", 1, 3, -1, 1, 12.58526))
sketch7.addConstraint(Sketcher.Constraint("DistanceX", -1, 1, 1, 3, 94.083426))
sketch7.setExpression("Constraints[25]", "Params.sketch7_radius")
sketch7.setExpression("Constraints[26]", "Params.sketch7_width")
sketch7.setExpression("Constraints[27]", "Params.sketch7_height")

additiveloft3 = body.newObject("PartDesign::AdditiveLoft", "AdditiveLoft002")
additiveloft3.Profile = sketch6
additiveloft3.Sections = [sketch7]

doc.recompute()
